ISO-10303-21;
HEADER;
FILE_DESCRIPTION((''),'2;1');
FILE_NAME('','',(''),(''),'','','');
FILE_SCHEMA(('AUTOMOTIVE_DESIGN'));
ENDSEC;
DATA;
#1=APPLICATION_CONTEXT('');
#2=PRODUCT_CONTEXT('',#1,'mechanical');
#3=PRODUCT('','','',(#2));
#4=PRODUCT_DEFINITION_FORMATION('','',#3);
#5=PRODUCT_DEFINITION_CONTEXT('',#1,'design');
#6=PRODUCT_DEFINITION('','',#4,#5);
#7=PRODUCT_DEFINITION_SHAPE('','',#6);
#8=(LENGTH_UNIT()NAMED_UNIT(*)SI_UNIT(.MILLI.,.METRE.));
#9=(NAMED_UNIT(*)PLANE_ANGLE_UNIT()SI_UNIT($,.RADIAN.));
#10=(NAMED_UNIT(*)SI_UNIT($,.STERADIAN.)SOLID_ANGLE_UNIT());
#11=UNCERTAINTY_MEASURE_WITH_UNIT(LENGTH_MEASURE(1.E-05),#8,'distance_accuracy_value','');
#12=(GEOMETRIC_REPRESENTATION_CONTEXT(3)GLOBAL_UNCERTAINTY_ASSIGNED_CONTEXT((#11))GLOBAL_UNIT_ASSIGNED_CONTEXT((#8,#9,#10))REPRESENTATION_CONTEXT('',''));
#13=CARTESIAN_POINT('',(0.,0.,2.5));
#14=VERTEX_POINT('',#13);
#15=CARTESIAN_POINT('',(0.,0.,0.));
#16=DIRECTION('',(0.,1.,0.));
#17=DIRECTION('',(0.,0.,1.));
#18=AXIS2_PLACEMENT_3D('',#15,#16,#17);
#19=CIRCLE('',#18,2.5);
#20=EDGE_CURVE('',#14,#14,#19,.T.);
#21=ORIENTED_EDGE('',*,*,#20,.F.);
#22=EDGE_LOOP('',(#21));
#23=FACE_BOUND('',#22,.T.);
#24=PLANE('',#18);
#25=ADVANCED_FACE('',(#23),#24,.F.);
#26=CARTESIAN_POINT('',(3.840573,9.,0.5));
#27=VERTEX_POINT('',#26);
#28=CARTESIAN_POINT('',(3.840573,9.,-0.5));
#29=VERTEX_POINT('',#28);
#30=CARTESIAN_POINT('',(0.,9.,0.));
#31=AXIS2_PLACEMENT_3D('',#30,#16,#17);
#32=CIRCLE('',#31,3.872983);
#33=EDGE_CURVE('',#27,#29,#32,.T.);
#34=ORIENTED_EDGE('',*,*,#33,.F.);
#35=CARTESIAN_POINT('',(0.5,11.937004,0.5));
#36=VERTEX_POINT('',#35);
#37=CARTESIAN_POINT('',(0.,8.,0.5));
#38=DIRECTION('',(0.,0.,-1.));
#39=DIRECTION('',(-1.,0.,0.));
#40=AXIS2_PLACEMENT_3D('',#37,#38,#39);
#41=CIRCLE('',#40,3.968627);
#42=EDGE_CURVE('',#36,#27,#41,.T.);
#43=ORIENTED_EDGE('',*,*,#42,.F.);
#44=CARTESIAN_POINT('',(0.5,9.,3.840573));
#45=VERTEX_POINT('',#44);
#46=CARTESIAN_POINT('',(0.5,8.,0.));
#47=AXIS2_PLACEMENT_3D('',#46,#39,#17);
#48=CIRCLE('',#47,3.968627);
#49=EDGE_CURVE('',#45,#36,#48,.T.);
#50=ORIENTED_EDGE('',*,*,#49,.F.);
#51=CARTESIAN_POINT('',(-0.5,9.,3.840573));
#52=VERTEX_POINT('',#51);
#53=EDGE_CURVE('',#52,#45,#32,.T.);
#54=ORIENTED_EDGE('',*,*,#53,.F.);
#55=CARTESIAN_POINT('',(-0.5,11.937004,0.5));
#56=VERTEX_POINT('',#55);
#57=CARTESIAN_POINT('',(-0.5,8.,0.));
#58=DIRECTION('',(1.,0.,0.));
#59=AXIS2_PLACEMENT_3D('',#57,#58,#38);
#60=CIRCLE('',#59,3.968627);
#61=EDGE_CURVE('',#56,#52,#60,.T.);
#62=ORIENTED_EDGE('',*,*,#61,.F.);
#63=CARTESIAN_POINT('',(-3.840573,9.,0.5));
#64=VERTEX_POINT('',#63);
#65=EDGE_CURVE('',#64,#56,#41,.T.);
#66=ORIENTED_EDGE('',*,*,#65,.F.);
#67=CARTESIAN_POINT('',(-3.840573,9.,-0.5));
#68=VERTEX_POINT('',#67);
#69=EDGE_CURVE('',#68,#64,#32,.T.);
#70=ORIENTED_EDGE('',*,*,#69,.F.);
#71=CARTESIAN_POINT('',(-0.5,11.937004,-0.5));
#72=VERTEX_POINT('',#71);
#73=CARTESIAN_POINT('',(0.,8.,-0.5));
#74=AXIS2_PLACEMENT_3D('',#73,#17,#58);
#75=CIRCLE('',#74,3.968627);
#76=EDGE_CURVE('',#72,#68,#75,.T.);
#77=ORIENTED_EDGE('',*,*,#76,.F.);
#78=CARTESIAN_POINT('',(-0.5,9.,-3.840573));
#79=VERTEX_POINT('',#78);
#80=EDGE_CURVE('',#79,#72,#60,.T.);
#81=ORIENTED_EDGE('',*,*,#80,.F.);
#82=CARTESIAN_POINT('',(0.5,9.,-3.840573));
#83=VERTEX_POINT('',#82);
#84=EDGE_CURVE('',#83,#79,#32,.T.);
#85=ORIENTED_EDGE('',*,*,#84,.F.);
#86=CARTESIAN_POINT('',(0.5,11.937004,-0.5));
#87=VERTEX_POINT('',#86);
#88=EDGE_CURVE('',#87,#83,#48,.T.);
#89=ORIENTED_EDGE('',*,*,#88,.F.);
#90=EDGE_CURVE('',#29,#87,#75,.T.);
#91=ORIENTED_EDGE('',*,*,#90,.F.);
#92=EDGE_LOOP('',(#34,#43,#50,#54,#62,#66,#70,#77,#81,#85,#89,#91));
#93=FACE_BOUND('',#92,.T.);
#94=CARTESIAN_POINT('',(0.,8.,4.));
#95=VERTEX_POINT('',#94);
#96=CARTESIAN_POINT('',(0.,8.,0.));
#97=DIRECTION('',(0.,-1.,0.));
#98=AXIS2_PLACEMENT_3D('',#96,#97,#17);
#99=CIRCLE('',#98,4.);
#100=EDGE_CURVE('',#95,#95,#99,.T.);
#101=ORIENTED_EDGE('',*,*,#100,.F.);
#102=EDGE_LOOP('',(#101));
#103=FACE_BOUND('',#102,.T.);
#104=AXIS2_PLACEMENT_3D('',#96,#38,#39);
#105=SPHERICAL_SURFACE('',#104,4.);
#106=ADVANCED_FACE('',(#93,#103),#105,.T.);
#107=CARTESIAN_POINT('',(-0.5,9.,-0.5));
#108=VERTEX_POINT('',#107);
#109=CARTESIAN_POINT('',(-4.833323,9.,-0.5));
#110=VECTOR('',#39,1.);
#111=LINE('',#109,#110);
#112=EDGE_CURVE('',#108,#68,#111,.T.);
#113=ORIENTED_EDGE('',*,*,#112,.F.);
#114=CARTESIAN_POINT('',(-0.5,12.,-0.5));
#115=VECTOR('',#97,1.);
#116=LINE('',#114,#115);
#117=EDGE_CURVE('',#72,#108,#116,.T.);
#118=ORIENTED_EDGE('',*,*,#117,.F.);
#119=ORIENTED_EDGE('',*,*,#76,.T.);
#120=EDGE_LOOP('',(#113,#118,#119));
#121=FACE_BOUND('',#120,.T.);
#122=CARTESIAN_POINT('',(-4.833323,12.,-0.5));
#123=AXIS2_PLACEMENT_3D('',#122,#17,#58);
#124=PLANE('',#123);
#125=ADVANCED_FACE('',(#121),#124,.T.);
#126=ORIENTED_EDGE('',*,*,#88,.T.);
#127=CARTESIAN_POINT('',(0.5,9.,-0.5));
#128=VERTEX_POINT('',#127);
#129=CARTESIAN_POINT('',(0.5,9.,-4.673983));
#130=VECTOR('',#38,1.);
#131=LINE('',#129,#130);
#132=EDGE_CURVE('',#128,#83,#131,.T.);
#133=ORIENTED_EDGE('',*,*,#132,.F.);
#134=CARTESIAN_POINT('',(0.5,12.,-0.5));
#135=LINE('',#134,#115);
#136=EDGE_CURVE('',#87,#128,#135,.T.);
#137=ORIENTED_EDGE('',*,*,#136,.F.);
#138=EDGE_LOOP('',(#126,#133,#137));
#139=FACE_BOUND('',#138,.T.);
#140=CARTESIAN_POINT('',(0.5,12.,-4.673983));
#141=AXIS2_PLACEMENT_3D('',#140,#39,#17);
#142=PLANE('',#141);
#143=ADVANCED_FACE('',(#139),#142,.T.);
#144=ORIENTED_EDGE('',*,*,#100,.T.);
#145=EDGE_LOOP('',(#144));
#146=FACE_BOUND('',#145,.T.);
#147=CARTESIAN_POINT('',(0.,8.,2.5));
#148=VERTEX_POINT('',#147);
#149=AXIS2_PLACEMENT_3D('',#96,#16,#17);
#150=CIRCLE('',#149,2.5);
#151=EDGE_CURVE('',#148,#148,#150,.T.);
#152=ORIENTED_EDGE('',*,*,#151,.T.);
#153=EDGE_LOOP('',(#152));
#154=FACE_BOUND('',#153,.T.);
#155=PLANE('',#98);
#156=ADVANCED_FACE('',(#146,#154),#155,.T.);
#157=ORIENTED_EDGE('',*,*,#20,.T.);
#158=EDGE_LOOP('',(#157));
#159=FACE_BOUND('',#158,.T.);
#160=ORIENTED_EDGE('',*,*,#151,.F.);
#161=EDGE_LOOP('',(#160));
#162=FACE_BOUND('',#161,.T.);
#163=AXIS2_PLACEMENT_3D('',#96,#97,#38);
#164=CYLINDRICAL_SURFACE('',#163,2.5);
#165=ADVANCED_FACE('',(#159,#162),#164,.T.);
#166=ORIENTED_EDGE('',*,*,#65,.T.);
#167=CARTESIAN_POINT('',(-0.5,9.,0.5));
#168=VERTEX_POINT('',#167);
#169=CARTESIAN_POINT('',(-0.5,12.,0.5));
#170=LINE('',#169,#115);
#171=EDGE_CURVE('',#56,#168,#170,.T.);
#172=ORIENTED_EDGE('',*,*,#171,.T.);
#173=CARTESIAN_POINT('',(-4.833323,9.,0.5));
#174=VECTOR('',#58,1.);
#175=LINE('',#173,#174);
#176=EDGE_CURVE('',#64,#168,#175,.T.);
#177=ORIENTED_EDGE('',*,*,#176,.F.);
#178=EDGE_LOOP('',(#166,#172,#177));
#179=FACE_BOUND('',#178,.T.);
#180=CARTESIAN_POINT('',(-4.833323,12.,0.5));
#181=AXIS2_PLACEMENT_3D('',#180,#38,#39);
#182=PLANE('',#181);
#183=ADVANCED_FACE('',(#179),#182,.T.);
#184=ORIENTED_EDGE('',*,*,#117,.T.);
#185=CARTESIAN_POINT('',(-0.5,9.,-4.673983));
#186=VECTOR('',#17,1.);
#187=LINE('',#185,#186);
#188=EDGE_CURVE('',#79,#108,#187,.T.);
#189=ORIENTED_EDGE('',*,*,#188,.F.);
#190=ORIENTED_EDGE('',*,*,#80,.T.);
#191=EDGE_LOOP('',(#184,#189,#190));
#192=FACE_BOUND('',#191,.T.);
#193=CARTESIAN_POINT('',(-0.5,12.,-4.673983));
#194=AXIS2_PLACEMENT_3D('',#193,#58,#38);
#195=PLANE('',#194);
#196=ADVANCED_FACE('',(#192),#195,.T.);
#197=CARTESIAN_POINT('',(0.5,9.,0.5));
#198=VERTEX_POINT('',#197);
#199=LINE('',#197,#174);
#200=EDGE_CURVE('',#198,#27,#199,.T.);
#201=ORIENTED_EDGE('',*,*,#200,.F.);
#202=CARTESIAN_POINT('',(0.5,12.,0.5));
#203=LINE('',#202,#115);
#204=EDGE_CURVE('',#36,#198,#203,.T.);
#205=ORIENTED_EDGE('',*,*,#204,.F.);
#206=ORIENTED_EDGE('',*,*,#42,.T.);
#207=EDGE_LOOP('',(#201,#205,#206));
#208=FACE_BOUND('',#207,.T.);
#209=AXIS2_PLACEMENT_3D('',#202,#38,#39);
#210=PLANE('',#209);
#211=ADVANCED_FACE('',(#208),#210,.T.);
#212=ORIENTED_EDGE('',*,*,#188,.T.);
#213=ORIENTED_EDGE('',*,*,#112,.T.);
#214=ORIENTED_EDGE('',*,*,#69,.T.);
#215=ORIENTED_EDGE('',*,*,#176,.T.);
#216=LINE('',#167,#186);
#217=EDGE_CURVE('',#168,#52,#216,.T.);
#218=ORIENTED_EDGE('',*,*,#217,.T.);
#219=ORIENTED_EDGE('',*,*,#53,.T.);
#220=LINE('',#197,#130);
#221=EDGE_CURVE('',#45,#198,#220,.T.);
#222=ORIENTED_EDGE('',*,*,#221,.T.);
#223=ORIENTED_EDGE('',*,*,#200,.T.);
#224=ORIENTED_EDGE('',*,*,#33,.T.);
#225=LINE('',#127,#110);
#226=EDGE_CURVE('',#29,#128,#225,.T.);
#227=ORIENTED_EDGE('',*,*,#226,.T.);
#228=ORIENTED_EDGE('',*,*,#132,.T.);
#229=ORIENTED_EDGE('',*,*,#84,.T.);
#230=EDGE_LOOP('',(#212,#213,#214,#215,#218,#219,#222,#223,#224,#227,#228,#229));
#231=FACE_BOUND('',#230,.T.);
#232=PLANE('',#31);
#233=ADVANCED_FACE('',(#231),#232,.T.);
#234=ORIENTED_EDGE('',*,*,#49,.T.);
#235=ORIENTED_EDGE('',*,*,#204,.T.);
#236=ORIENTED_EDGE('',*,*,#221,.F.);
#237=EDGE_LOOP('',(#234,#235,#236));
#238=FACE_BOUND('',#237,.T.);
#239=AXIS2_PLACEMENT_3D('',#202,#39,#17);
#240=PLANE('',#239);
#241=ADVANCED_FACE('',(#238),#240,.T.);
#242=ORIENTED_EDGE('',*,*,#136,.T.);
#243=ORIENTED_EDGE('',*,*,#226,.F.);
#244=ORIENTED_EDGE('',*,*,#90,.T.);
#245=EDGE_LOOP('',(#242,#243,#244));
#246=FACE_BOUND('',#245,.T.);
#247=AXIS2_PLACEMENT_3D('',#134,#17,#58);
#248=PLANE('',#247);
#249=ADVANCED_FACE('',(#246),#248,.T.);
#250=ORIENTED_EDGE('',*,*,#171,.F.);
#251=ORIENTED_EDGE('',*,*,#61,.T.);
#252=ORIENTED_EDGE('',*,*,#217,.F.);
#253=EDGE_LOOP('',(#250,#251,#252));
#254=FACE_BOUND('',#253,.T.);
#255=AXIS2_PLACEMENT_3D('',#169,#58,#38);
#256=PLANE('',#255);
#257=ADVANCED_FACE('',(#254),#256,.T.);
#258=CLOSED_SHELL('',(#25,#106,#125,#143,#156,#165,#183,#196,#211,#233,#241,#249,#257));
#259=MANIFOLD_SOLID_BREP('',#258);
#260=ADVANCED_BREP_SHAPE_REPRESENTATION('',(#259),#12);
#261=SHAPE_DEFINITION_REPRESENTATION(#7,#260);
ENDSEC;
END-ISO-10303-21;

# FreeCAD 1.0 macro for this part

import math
import FreeCAD as App
import Part
import Sketcher

doc = App.newDocument("Part")
body = doc.addObject("PartDesign::Body", "Body")

sketch1 = doc.addObject("Sketcher::SketchObject", "Sketch")
body.addObject(sketch1)
sketch1.AttachmentSupport = (doc.XZ_Plane, [""])
sketch1.MapMode = "FlatFace"
sketch1.addGeometry(Part.Circle(App.Vector(0, 0, 0), App.Vector(0, 0, 1), 2.5), False)
sketch1.addConstraint([
    Sketcher.Constraint("Coincident", 0, 3, -1, 1),
    Sketcher.Constraint("Diameter", 0, 5.0),
])
pad1 = doc.addObject("PartDesign::Pad", "Pad")
body.addObject(pad1)
pad1.Profile = sketch1
pad1.Length = 8
pad1.Reversed = True

sketch2 = doc.addObject("Sketcher::SketchObject", "Sketch001")
body.addObject(sketch2)
sketch2.AttachmentSupport = (doc.XZ_Plane, [""])
sketch2.MapMode = "FlatFace"
sketch2.AttachmentOffset = App.Placement(App.Vector(0, 0, -8), App.Rotation())
sketch2.addGeometry([
    Part.LineSegment(App.Vector(0, -4, 0), App.Vector(0, 4, 0)),
    Part.ArcOfCircle(Part.Circle(App.Vector(0, 0, 0), App.Vector(0, 0, 1), 4), math.radians(-90), math.radians(90)),
], False)
sketch2.addConstraint([
    Sketcher.Constraint("Coincident", 0, 1, 1, 1),
    Sketcher.Constraint("Coincident", 1, 2, 0, 2),
    Sketcher.Constraint("Vertical", 0),
    Sketcher.Constraint("Coincident", 1, 3, -1, 1),
    Sketcher.Constraint("PointOnObject", 0, 1, -2),
    Sketcher.Constraint("Radius", 1, 4.0),
])
revolution = doc.addObject("PartDesign::Revolution", "Revolution")
body.addObject(revolution)
revolution.Profile = sketch2
revolution.ReferenceAxis = (sketch2, ["V_Axis"])
revolution.Angle = 180

sketch3 = doc.addObject("Sketcher::SketchObject", "Sketch002")
body.addObject(sketch3)
sketch3.AttachmentSupport = (doc.XZ_Plane, [""])
sketch3.MapMode = "FlatFace"
sketch3.AttachmentOffset = App.Placement(App.Vector(0, 0, -9), App.Rotation())
sketch3.addGeometry([
    Part.LineSegment(App.Vector(5.630025, -0.5, 0), App.Vector(0.5, -0.5, 0)),
    Part.LineSegment(App.Vector(0.5, -0.5, 0), App.Vector(0.5, -4.673983, 0)),
    Part.LineSegment(App.Vector(0.5, -4.673983, 0), App.Vector(-0.5, -4.673983, 0)),
    Part.LineSegment(App.Vector(-0.5, -4.673983, 0), App.Vector(-0.5, -0.5, 0)),
    Part.LineSegment(App.Vector(-0.5, -0.5, 0), App.Vector(-4.833323, -0.5, 0)),
    Part.LineSegment(App.Vector(-4.833323, -0.5, 0), App.Vector(-4.833323, 0.5, 0)),
    Part.LineSegment(App.Vector(-4.833323, 0.5, 0), App.Vector(-0.5, 0.5, 0)),
    Part.LineSegment(App.Vector(-0.5, 0.5, 0), App.Vector(-0.5, 4.833323, 0)),
    Part.LineSegment(App.Vector(-0.5, 4.833323, 0), App.Vector(0.5, 4.833323, 0)),
    Part.LineSegment(App.Vector(0.5, 4.833323, 0), App.Vector(0.5, 0.5, 0)),
    Part.LineSegment(App.Vector(0.5, 0.5, 0), App.Vector(5.630025, 0.5, 0)),
    Part.LineSegment(App.Vector(5.630025, 0.5, 0), App.Vector(5.630025, -0.5, 0)),
], False)
sketch3.addConstraint([
    Sketcher.Constraint("Coincident", 0, 2, 1, 1),
    Sketcher.Constraint("Coincident", 1, 2, 2, 1),
    Sketcher.Constraint("Coincident", 2, 2, 3, 1),
    Sketcher.Constraint("Coincident", 3, 2, 4, 1),
    Sketcher.Constraint("Coincident", 4, 2, 5, 1),
    Sketcher.Constraint("Coincident", 5, 2, 6, 1),
    Sketcher.Constraint("Coincident", 6, 2, 7, 1),
    Sketcher.Constraint("Coincident", 7, 2, 8, 1),
    Sketcher.Constraint("Coincident", 8, 2, 9, 1),
    Sketcher.Constraint("Coincident", 9, 2, 10, 1),
    Sketcher.Constraint("Coincident", 10, 2, 11, 1),
    Sketcher.Constraint("Coincident", 11, 2, 0, 1),
    Sketcher.Constraint("Horizontal", 0),
    Sketcher.Constraint("Vertical", 1),
    Sketcher.Constraint("Horizontal", 2),
    Sketcher.Constraint("Vertical", 3),
    Sketcher.Constraint("Horizontal", 4),
    Sketcher.Constraint("Vertical", 5),
    Sketcher.Constraint("Horizontal", 6),
    Sketcher.Constraint("Vertical", 7),
    Sketcher.Constraint("Horizontal", 8),
    Sketcher.Constraint("Vertical", 9),
    Sketcher.Constraint("Horizontal", 10),
    Sketcher.Constraint("Vertical", 11),
    Sketcher.Constraint("Symmetric", 0, 2, 6, 2, -1, 1),
    Sketcher.Constraint("Symmetric", 3, 2, 9, 2, -1, 1),
    Sketcher.Constraint("Symmetric", 0, 2, 3, 2, -2),
    Sketcher.Constraint("Equal", 8, 5),
    Sketcher.Constraint("Equal", 6, 7),
    Sketcher.Constraint("DistanceX", 2, 2, 2, 1, 1.0),
    Sketcher.Constraint("DistanceX", 0, 2, 0, 1, 5.130025),
    Sketcher.Constraint("DistanceX", 4, 2, 4, 1, 4.333323),
    Sketcher.Constraint("DistanceY", 1, 2, 1, 1, 4.173983),
])
pocket1 = doc.addObject("PartDesign::Pocket", "Pocket")
body.addObject(pocket1)
pocket1.Profile = sketch3
pocket1.Length = 3

doc.recompute()
